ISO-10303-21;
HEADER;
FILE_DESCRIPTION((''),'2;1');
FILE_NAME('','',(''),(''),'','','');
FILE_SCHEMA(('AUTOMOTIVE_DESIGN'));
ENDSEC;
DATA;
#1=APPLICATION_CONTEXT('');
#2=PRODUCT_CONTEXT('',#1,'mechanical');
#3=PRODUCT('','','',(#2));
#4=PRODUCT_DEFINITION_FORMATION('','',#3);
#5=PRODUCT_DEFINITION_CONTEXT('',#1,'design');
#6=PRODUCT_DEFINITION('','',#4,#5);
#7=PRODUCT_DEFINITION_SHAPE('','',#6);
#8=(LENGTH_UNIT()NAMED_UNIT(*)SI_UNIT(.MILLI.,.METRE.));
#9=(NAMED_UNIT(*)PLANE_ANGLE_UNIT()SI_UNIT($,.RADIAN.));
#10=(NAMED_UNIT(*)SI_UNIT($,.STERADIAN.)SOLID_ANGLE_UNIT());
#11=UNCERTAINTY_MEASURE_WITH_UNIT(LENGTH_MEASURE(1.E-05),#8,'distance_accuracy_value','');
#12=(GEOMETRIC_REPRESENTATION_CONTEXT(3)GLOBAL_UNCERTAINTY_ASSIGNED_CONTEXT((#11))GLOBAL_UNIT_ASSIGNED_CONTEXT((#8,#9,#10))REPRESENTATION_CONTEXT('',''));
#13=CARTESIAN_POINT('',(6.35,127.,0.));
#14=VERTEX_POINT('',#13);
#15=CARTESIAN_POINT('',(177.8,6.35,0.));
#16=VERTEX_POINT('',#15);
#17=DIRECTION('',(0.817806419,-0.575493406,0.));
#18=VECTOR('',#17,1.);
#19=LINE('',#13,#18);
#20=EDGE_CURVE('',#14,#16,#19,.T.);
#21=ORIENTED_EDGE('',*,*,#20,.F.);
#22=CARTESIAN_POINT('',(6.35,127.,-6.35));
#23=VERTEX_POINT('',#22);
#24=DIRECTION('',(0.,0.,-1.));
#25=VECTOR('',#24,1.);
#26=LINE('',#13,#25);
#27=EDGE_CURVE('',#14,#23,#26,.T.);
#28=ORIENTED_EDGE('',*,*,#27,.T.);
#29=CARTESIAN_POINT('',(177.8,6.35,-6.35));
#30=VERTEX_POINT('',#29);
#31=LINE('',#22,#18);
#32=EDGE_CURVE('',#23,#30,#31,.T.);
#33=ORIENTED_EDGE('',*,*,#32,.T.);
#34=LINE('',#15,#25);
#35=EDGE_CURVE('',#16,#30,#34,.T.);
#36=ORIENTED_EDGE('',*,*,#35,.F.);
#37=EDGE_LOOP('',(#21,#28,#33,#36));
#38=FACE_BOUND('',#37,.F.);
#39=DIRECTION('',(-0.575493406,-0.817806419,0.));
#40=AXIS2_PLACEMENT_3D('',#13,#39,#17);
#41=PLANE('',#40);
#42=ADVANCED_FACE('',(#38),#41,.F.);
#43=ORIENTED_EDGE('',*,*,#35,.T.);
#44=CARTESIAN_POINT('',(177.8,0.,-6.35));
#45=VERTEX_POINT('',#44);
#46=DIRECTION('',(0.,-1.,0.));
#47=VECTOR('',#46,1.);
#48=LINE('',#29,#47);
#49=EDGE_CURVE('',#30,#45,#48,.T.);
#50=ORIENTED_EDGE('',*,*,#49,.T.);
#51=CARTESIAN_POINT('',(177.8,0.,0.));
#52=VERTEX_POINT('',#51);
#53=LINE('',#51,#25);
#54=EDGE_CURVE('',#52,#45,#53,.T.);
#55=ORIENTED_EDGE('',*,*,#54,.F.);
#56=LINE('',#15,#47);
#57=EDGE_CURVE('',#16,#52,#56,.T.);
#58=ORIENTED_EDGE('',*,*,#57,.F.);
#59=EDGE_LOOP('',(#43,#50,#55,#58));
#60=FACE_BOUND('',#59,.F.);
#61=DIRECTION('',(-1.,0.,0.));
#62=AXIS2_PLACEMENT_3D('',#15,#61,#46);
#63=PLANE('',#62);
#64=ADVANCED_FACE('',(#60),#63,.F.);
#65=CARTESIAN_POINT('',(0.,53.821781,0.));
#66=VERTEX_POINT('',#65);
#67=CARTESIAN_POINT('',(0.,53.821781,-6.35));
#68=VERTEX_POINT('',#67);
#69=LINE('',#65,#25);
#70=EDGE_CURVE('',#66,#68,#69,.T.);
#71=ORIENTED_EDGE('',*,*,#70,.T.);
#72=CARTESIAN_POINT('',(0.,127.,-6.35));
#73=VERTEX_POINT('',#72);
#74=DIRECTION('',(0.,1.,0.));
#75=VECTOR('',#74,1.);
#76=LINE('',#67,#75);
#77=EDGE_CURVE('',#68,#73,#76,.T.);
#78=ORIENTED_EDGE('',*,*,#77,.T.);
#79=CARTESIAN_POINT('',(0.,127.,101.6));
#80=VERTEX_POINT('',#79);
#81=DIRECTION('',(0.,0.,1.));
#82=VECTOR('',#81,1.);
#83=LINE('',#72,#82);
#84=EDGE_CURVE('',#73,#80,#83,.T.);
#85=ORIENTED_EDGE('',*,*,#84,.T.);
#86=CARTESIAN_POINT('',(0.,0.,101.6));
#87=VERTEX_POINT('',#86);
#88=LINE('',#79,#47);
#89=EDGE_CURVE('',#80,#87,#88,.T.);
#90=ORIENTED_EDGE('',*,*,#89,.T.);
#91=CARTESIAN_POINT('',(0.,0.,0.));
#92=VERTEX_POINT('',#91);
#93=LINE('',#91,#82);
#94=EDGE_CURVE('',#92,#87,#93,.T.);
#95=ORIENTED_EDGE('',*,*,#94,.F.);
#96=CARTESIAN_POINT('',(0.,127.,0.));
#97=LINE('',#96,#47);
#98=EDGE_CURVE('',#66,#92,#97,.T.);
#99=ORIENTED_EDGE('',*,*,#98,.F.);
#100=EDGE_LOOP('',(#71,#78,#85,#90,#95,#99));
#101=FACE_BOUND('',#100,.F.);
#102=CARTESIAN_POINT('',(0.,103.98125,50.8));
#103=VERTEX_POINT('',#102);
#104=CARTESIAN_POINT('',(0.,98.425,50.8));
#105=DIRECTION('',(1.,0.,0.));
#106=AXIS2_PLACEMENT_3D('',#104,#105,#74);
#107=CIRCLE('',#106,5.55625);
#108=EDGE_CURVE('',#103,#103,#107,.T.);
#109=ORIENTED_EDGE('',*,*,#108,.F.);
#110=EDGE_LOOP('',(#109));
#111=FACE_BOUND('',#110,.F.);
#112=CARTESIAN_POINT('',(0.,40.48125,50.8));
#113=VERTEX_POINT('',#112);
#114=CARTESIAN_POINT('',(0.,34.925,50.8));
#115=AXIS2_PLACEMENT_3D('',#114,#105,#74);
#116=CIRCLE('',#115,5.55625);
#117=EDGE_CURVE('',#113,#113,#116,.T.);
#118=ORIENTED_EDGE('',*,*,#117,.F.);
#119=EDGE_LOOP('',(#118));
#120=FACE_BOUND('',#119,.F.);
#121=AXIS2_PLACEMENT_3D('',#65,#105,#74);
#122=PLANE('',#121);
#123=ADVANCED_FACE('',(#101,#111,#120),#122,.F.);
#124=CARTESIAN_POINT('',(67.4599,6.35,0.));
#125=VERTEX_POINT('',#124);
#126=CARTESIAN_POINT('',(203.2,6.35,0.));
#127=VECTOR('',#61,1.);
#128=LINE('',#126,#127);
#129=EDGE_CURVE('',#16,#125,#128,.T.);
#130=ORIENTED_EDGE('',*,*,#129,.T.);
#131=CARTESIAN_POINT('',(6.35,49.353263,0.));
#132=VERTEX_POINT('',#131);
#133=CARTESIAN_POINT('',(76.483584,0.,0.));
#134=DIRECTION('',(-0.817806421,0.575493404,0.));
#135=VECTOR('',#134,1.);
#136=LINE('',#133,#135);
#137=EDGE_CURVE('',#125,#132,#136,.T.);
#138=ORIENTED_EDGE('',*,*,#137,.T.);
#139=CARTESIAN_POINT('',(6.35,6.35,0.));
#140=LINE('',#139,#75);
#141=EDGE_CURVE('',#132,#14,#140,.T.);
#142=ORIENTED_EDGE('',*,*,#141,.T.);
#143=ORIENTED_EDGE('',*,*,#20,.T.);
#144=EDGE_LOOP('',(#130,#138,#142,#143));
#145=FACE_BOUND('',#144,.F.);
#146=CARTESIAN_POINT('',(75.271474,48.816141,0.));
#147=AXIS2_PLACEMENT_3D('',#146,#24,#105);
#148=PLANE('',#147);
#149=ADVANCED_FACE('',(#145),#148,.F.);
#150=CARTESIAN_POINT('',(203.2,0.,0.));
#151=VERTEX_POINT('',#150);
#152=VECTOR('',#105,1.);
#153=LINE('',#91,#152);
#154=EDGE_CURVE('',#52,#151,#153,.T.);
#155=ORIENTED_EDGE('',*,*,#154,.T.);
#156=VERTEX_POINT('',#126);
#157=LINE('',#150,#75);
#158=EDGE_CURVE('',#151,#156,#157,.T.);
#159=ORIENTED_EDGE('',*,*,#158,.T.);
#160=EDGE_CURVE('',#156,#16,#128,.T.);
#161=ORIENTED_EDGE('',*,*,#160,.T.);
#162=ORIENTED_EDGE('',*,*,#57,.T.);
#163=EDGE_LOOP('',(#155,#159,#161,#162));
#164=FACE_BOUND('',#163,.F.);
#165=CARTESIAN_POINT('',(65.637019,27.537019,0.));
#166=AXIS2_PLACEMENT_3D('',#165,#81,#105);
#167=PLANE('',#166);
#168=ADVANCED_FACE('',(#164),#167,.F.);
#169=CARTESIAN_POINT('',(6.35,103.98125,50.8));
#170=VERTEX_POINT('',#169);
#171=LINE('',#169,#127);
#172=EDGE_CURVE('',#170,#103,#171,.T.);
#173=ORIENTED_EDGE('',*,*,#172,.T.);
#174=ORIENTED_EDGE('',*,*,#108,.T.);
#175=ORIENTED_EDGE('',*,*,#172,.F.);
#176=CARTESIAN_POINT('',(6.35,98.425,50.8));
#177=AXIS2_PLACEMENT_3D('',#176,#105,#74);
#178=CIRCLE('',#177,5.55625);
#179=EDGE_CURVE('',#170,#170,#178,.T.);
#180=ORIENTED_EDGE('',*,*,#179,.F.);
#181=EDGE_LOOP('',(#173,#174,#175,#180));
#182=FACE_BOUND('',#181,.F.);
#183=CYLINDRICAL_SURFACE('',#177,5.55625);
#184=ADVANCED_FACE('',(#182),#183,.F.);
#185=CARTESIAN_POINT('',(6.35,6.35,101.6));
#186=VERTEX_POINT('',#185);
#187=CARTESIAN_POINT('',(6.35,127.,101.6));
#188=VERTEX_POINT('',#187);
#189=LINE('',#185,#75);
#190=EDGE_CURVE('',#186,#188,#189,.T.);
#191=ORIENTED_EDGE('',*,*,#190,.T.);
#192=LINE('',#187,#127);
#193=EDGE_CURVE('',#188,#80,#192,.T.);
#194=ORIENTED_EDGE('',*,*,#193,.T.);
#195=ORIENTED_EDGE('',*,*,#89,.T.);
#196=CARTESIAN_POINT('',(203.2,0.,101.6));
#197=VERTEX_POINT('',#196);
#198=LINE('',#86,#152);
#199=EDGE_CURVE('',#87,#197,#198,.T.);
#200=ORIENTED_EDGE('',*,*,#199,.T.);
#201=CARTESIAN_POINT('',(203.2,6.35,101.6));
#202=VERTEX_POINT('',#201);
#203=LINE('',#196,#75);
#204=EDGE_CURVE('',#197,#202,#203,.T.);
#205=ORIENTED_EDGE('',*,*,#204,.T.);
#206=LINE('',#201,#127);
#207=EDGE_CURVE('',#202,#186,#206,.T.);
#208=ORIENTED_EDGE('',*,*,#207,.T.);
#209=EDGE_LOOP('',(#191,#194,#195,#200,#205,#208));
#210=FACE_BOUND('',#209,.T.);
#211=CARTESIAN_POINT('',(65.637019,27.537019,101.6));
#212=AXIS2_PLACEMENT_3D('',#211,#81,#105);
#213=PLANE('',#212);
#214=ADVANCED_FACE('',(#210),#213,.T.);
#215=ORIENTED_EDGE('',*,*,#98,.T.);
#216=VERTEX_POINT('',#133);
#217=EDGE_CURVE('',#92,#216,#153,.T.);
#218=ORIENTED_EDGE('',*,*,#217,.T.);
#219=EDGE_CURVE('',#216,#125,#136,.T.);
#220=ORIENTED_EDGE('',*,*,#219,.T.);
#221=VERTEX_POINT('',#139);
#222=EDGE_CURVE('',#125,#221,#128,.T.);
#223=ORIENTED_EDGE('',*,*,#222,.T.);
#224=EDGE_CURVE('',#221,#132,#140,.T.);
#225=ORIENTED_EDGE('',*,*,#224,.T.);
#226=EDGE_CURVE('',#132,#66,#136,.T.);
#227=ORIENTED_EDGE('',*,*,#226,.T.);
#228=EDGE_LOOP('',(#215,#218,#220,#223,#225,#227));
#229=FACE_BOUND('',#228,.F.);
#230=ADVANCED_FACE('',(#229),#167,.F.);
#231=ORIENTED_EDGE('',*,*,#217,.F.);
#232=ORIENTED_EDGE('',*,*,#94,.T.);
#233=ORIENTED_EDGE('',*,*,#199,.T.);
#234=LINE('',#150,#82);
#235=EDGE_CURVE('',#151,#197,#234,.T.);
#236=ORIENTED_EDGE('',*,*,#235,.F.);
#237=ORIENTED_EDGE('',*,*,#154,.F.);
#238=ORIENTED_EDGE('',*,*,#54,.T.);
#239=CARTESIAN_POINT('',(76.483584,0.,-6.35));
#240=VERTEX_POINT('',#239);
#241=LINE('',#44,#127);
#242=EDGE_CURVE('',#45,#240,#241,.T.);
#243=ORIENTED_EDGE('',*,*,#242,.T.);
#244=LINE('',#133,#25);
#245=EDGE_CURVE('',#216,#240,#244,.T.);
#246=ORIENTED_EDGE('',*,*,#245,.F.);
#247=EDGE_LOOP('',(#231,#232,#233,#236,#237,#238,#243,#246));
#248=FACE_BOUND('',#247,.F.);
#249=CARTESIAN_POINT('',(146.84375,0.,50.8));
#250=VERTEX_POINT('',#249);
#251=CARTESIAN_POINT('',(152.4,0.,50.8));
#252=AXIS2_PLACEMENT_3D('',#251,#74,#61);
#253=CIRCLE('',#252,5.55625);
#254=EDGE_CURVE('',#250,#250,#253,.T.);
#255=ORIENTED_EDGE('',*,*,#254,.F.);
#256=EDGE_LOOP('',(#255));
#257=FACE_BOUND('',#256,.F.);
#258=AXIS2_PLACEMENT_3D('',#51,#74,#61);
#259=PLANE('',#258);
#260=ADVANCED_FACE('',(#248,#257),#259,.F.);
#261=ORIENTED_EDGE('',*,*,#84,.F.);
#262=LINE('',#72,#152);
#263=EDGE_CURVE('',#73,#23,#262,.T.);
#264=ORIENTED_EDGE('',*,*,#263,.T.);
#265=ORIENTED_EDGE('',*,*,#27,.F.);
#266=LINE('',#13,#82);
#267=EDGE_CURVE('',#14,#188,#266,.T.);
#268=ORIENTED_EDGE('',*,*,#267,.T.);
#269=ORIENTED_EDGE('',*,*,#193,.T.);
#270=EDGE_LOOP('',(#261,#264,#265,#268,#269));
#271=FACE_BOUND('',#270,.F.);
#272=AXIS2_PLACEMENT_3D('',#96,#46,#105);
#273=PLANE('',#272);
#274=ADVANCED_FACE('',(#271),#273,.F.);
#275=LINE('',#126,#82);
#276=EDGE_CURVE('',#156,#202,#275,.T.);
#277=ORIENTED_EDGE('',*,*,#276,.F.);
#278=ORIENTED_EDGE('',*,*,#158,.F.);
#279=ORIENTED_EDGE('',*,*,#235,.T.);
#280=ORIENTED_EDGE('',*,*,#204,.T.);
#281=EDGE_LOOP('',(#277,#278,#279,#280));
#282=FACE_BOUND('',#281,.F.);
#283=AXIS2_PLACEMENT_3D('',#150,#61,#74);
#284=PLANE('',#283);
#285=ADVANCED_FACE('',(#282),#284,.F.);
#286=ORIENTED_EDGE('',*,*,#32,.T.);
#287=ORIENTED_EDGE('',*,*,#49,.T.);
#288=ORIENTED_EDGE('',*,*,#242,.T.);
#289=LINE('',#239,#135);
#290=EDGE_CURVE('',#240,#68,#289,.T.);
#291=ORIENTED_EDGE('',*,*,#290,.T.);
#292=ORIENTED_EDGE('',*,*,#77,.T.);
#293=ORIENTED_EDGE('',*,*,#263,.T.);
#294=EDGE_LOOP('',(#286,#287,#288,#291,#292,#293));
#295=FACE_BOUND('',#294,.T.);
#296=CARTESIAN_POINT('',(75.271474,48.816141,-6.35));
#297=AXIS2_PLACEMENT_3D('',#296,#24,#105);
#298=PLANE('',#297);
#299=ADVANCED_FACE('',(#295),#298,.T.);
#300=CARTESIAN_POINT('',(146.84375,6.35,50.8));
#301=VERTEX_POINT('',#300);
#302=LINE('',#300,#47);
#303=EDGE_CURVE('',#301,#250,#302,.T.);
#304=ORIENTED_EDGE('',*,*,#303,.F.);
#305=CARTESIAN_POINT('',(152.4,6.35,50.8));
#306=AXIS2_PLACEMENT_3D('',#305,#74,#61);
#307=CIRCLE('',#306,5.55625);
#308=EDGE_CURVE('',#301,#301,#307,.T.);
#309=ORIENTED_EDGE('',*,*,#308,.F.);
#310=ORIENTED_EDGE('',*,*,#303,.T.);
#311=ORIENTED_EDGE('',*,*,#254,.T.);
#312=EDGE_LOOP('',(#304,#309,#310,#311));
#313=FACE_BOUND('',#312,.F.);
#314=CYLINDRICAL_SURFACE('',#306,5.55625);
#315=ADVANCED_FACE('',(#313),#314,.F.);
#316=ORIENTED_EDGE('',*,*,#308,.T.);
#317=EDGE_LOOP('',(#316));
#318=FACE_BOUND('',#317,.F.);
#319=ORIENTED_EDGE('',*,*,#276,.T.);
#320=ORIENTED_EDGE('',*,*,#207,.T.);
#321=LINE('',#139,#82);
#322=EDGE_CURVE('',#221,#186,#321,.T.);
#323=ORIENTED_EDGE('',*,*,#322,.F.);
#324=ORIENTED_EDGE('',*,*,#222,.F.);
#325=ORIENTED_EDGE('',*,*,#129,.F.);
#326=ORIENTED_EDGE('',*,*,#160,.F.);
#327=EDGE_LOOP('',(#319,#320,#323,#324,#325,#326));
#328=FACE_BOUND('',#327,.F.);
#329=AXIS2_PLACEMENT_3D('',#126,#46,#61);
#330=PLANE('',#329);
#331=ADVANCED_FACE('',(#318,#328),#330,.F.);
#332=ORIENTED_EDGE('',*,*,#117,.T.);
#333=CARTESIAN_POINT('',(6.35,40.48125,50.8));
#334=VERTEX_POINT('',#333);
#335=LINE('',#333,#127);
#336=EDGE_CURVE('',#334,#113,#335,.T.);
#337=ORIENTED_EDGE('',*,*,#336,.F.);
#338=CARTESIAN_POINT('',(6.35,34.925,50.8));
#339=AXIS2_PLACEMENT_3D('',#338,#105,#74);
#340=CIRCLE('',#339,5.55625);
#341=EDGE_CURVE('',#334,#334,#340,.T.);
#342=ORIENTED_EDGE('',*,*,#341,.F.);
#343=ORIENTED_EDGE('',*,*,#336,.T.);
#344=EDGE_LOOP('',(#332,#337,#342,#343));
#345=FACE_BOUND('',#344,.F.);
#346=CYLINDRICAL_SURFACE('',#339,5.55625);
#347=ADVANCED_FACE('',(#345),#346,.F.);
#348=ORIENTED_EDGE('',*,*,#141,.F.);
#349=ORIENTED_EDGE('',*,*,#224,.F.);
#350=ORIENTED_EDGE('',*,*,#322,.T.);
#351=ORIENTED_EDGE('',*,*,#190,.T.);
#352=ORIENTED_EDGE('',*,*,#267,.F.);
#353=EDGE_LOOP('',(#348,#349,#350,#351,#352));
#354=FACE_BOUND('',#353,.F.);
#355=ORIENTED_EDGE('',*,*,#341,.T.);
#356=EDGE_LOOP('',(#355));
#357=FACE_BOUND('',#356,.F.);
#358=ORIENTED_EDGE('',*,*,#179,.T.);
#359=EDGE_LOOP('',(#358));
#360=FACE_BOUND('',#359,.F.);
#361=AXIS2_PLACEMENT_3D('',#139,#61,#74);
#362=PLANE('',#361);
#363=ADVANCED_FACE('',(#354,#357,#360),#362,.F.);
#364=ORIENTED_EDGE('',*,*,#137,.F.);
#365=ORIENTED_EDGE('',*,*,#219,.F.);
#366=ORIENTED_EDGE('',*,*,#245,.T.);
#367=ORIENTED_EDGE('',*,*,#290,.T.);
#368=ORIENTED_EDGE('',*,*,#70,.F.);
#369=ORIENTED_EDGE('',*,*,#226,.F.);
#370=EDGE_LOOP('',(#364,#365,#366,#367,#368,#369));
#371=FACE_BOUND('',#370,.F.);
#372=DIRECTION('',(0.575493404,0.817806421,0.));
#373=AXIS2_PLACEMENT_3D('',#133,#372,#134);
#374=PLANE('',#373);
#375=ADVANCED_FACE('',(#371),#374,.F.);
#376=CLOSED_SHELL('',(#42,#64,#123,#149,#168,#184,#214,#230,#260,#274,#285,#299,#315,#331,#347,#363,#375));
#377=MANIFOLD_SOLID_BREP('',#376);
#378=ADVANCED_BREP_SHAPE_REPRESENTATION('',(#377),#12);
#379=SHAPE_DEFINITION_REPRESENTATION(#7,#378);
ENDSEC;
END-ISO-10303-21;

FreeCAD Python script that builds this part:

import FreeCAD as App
import Part
import Sketcher

V = App.Vector
Q = App.Units.Quantity

doc = App.newDocument("Part")
body = doc.addObject("PartDesign::Body", "Body")

# Sketch on XY plane
sketch1 = body.newObject("Sketcher::SketchObject", "Sketch")
sketch1.AttachmentSupport = (doc.getObject("XY_Plane"), [""])
sketch1.MapMode = "FlatFace"
sketch1.addGeometry([
    Part.LineSegment(V(6, 127, 0), V(0, 127, 0)),  # 0
    Part.LineSegment(V(0, 127, 0), V(0, 0, 0)),  # 1
    Part.LineSegment(V(0, 0, 0), V(203, 0, 0)),  # 2
    Part.LineSegment(V(203, 0, 0), V(203, 6, 0)),  # 3
    Part.LineSegment(V(203, 6, 0), V(6, 6, 0)),  # 4
    Part.LineSegment(V(6, 6, 0), V(6, 127, 0)),  # 5
], False)
sketch1.addConstraint([
    Sketcher.Constraint("Coincident", 0, 2, 1, 1),
    Sketcher.Constraint("Coincident", 1, 2, 2, 1),
    Sketcher.Constraint("Coincident", 2, 2, 3, 1),
    Sketcher.Constraint("Coincident", 3, 2, 4, 1),
    Sketcher.Constraint("Coincident", 4, 2, 5, 1),
    Sketcher.Constraint("Coincident", 5, 2, 0, 1),
    Sketcher.Constraint("Horizontal", 0),
    Sketcher.Constraint("Vertical", 1),
    Sketcher.Constraint("Horizontal", 2),
    Sketcher.Constraint("Vertical", 3),
    Sketcher.Constraint("Horizontal", 4),
    Sketcher.Constraint("Vertical", 5),
    Sketcher.Constraint("Coincident", 1, 2, -1, 1),
    Sketcher.Constraint("Equal", 0, 3),
    Sketcher.Constraint("DistanceX", 2, 1, 2, 2, Q("8 in")),
    Sketcher.Constraint("DistanceY", 1, 2, 1, 1, Q("5 in")),
    Sketcher.Constraint("DistanceX", 0, 2, 0, 1, Q("0.25 in")),
])
pad1 = body.newObject("PartDesign::Pad", "Pad")
pad1.Profile = sketch1
pad1.Length = Q("4 in")

# Sketch on XY plane
sketch2 = body.newObject("Sketcher::SketchObject", "Sketch001")
sketch2.AttachmentSupport = (doc.getObject("XY_Plane"), [""])
sketch2.MapMode = "FlatFace"
sketch2.addGeometry([
    Part.LineSegment(V(0, 127, 0), V(6, 127, 0)),  # 0
    Part.LineSegment(V(6, 127, 0), V(178, 6, 0)),  # 1
    Part.LineSegment(V(178, 6, 0), V(178, 0, 0)),  # 2
    Part.LineSegment(V(178, 0, 0), V(76, 0, 0)),  # 3
    Part.LineSegment(V(76, 0, 0), V(0, 54, 0)),  # 4
    Part.LineSegment(V(0, 54, 0), V(0, 127, 0)),  # 5
], False)
sketch2.addConstraint([
    Sketcher.Constraint("Coincident", 0, 2, 1, 1),
    Sketcher.Constraint("Coincident", 1, 2, 2, 1),
    Sketcher.Constraint("Coincident", 2, 2, 3, 1),
    Sketcher.Constraint("Coincident", 3, 2, 4, 1),
    Sketcher.Constraint("Coincident", 4, 2, 5, 1),
    Sketcher.Constraint("Coincident", 5, 2, 0, 1),
    Sketcher.Constraint("Horizontal", 0),
    Sketcher.Constraint("Vertical", 2),
    Sketcher.Constraint("Horizontal", 3),
    Sketcher.Constraint("Vertical", 5),
    Sketcher.Constraint("PointOnObject", 2, 2, -1),
    Sketcher.Constraint("PointOnObject", 4, 2, -2),
    Sketcher.Constraint("Parallel", 1, 4),
    Sketcher.Constraint("Equal", 0, 2),
    Sketcher.Constraint("DistanceY", -1, 1, 0, 2, Q("5 in")),
    Sketcher.Constraint("DistanceX", -1, 1, 1, 2, Q("7 in")),
    Sketcher.Constraint("DistanceX", 0, 1, 0, 2, Q("0.25 in")),
    Sketcher.Constraint("DistanceY", 5, 1, 5, 2, 73.178219),
])
pad2 = body.newObject("PartDesign::Pad", "Pad001")
pad2.Profile = sketch2
pad2.Length = Q("0.25 in")
pad2.Reversed = True

# Sketch on YZ plane
sketch3 = body.newObject("Sketcher::SketchObject", "Sketch002")
sketch3.AttachmentSupport = (doc.getObject("YZ_Plane"), [""])
sketch3.MapMode = "FlatFace"
sketch3.AttachmentOffset = App.Placement(V(0, 0, 0.25 * 25.4), App.Rotation())
sketch3.addGeometry([
    Part.Circle(V(35, 51, 0), V(0, 0, 1), 6),
    Part.Circle(V(98, 51, 0), V(0, 0, 1), 6),
], False)
sketch3.addConstraint([
    Sketcher.Constraint("Equal", 0, 1),
    Sketcher.Constraint("Horizontal", 0, 3, 1, 3),
    Sketcher.Constraint("Diameter", 0, Q("0.4375 in")),
    Sketcher.Constraint("DistanceY", -1, 1, 0, 3, Q("2 in")),
    Sketcher.Constraint("DistanceX", 0, 3, 1, 3, Q("2.5 in")),
    Sketcher.Constraint("DistanceX", -1, 1, 0, 3, Q("1.375 in")),
])
pocket1 = body.newObject("PartDesign::Pocket", "Pocket")
pocket1.Profile = sketch3
pocket1.Type = "ThroughAll"

# Sketch on XZ plane
sketch4 = body.newObject("Sketcher::SketchObject", "Sketch003")
sketch4.AttachmentSupport = (doc.getObject("XZ_Plane"), [""])
sketch4.MapMode = "FlatFace"
sketch4.AttachmentOffset = App.Placement(V(0, 0, -0.25 * 25.4), App.Rotation())
sketch4.addGeometry(Part.Circle(V(152, 51, 0), V(0, 0, 1), 6), False)
sketch4.addConstraint([
    Sketcher.Constraint("Diameter", 0, Q("0.4375 in")),
    Sketcher.Constraint("DistanceX", -1, 1, 0, 3, Q("6 in")),
    Sketcher.Constraint("DistanceY", -1, 1, 0, 3, Q("2 in")),
])
pocket2 = body.newObject("PartDesign::Pocket", "Pocket001")
pocket2.Profile = sketch4
pocket2.Type = "ThroughAll"
pocket2.Reversed = True

doc.recompute()
